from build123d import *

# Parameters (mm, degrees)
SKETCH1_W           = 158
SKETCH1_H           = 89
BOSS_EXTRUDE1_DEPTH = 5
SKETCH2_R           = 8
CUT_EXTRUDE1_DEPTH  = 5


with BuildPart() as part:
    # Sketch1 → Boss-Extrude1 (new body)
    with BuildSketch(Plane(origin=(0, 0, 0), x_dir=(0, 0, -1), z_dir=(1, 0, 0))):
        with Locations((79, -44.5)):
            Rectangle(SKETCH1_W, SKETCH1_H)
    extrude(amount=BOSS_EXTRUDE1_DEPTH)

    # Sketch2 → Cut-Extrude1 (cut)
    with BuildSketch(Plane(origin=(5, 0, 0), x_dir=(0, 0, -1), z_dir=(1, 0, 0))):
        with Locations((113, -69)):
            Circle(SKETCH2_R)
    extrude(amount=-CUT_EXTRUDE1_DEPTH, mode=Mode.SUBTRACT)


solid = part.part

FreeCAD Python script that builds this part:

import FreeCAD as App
import Part
import Sketcher

V = App.Vector

doc = App.newDocument("Part")
body = doc.addObject("PartDesign::Body", "Body")

# Sketch on YZ plane
sketch1 = body.newObject("Sketcher::SketchObject", "Sketch")
sketch1.AttachmentSupport = (doc.getObject("YZ_Plane"), [""])
sketch1.MapMode = "FlatFace"
sketch1.addGeometry([
    Part.LineSegment(V(0, 0, 0), V(-89, 0, 0)),
    Part.LineSegment(V(-89, 0, 0), V(-89, -158, 0)),
    Part.LineSegment(V(-89, -158, 0), V(0, -158, 0)),
    Part.LineSegment(V(0, -158, 0), V(0, 0, 0)),
], False)
sketch1.addConstraint([
    Sketcher.Constraint("Coincident", 0, 2, 1, 1),
    Sketcher.Constraint("Coincident", 1, 2, 2, 1),
    Sketcher.Constraint("Coincident", 2, 2, 3, 1),
    Sketcher.Constraint("Coincident", 3, 2, 0, 1),
    Sketcher.Constraint("Horizontal", 0),
    Sketcher.Constraint("Vertical", 1),
    Sketcher.Constraint("Horizontal", 2),
    Sketcher.Constraint("Vertical", 3),
    Sketcher.Constraint("Coincident", 3, 2, -1, 1),
    Sketcher.Constraint("DistanceX", 0, 2, 0, 1, 89.0),
    Sketcher.Constraint("DistanceY", 1, 2, 1, 1, 158.0),
])
pad1 = body.newObject("PartDesign::Pad", "Pad")
pad1.Profile = sketch1
pad1.Length = 5

# Sketch on YZ plane
sketch2 = body.newObject("Sketcher::SketchObject", "Sketch001")
sketch2.AttachmentSupport = (doc.getObject("YZ_Plane"), [""])
sketch2.MapMode = "FlatFace"
sketch2.AttachmentOffset = App.Placement(V(0, 0, 5), App.Rotation())
sketch2.addGeometry(Part.Circle(V(-69, -113, 0), V(0, 0, 1), 8), False)
sketch2.addConstraint([
    Sketcher.Constraint("Diameter", 0, 16.0),
    Sketcher.Constraint("DistanceX", 0, 3, -1, 1, 69.0),
    Sketcher.Constraint("DistanceY", 0, 3, -1, 1, 113.0),
])
pocket1 = body.newObject("PartDesign::Pocket", "Pocket")
pocket1.Profile = sketch2
pocket1.Length = 5

doc.recompute()
